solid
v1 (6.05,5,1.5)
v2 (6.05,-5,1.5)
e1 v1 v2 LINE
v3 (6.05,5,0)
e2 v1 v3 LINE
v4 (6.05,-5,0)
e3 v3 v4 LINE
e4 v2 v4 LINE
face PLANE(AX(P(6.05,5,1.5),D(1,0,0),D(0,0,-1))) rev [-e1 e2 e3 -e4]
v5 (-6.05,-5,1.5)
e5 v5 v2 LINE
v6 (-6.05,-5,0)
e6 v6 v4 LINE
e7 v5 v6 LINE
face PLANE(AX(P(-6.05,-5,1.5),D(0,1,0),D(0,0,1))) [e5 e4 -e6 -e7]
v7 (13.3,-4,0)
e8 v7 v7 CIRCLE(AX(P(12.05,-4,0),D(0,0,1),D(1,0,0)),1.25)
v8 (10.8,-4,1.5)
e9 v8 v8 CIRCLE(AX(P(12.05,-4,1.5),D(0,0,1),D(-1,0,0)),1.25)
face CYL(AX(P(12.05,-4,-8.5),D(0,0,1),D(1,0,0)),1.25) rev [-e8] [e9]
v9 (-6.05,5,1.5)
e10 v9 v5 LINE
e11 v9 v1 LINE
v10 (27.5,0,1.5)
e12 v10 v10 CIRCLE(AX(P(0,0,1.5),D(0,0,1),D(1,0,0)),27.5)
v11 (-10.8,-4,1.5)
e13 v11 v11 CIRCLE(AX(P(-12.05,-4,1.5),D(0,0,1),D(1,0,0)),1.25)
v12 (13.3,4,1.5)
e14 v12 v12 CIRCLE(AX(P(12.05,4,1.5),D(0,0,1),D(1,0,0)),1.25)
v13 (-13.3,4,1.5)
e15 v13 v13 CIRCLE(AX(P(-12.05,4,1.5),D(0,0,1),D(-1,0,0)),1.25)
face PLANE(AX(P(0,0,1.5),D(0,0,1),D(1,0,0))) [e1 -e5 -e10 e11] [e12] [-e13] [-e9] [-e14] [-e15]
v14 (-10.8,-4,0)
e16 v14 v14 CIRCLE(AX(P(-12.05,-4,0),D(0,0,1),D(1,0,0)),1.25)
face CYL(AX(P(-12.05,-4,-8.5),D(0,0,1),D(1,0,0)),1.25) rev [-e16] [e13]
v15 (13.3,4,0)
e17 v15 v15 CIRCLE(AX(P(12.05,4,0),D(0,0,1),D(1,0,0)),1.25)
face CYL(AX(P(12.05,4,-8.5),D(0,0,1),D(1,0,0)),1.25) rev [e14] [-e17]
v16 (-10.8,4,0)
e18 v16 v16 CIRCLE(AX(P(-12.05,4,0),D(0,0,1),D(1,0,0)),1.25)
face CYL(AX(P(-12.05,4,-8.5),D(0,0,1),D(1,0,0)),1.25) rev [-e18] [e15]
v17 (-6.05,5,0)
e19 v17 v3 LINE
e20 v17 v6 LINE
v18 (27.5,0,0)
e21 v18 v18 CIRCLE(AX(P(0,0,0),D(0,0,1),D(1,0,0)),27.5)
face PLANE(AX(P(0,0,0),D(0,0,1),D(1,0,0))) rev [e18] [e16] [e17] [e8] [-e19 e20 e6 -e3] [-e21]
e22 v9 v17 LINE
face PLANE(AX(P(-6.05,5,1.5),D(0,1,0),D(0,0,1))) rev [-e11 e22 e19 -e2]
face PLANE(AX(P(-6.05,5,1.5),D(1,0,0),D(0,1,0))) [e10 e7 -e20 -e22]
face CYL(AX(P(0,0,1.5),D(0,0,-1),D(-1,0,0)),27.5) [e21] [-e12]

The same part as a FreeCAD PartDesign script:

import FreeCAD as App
import Part
import Sketcher

V = App.Vector
Q = App.Units.Quantity


def add_polygon(sketch, points):
    """Adds a closed chain of lines whose ends are joined by coincident constraints."""
    first, n = sketch.GeometryCount, len(points)
    for a, b in zip(points, points[1:] + points[:1]):
        sketch.addGeometry(Part.LineSegment(App.Vector(*a, 0), App.Vector(*b, 0)), False)
    for i in range(n):
        sketch.addConstraint(Sketcher.Constraint("Coincident", first + i, 2, first + (i + 1) % n, 1))

doc = App.newDocument("Part")
body = doc.addObject("PartDesign::Body", "Body")

sketch1 = doc.addObject("Sketcher::SketchObject", "Sketch")
body.addObject(sketch1)
sketch1.AttachmentSupport = (doc.XY_Plane, [""])
sketch1.MapMode = "FlatFace"
sketch1.addGeometry(Part.Circle(V(0, 0, 0), V(0, 0, 1), 28), False)
add_polygon(sketch1, [(6, -5), (-6, -5), (-6, 5), (6, 5)])
sketch1.addConstraint([
    Sketcher.Constraint("Horizontal", 1),
    Sketcher.Constraint("Vertical", 2),
    Sketcher.Constraint("Horizontal", 3),
    Sketcher.Constraint("Vertical", 4),
    Sketcher.Constraint("Coincident", 0, 3, -1, 1),
    Sketcher.Constraint("Symmetric", 1, 2, 3, 2, -1, 1),
    Sketcher.Constraint("Diameter", 0, Q("55 mm")),
    Sketcher.Constraint("DistanceY", 2, 1, 2, 2, Q("10 mm")),
    Sketcher.Constraint("DistanceX", 1, 2, 1, 1, Q("12.1 mm")),
])
pad1 = doc.addObject("PartDesign::Pad", "Pad")
body.addObject(pad1)
pad1.Profile = sketch1
pad1.Length = 1.5

sketch2 = doc.addObject("Sketcher::SketchObject", "Sketch001")
body.addObject(sketch2)
sketch2.AttachmentSupport = (doc.XY_Plane, [""])
sketch2.MapMode = "FlatFace"
sketch2.AttachmentOffset = App.Placement(V(0, 0, 1.5), App.Rotation())
sketch2.addGeometry([
    Part.Circle(V(12.1, 4, 0), V(0, 0, 1), 1.2),
    Part.Circle(V(-12.1, 4, 0), V(0, 0, 1), 1.2),
    Part.Circle(V(12.1, -4, 0), V(0, 0, 1), 1.2),
    Part.Circle(V(-12.1, -4, 0), V(0, 0, 1), 1.2),
], False)
sketch2.addConstraint([
    Sketcher.Constraint("Equal", 0, 1),
    Sketcher.Constraint("Equal", 1, 2),
    Sketcher.Constraint("Equal", 2, 3),
    Sketcher.Constraint("Symmetric", 1, 3, 2, 3, -1, 1),
    Sketcher.Constraint("Symmetric", 0, 3, 3, 3, -1, 1),
    Sketcher.Constraint("Symmetric", 0, 3, 1, 3, -2),
    Sketcher.Constraint("Diameter", 0, Q("2.5 mm")),
    Sketcher.Constraint("DistanceY", -1, 1, 0, 3, Q("4 mm")),
    Sketcher.Constraint("DistanceX", 1, 3, 0, 3, Q("24.1 mm")),
])
pocket1 = doc.addObject("PartDesign::Pocket", "Pocket")
body.addObject(pocket1)
pocket1.Profile = sketch2
pocket1.Length = 10

doc.recompute()
